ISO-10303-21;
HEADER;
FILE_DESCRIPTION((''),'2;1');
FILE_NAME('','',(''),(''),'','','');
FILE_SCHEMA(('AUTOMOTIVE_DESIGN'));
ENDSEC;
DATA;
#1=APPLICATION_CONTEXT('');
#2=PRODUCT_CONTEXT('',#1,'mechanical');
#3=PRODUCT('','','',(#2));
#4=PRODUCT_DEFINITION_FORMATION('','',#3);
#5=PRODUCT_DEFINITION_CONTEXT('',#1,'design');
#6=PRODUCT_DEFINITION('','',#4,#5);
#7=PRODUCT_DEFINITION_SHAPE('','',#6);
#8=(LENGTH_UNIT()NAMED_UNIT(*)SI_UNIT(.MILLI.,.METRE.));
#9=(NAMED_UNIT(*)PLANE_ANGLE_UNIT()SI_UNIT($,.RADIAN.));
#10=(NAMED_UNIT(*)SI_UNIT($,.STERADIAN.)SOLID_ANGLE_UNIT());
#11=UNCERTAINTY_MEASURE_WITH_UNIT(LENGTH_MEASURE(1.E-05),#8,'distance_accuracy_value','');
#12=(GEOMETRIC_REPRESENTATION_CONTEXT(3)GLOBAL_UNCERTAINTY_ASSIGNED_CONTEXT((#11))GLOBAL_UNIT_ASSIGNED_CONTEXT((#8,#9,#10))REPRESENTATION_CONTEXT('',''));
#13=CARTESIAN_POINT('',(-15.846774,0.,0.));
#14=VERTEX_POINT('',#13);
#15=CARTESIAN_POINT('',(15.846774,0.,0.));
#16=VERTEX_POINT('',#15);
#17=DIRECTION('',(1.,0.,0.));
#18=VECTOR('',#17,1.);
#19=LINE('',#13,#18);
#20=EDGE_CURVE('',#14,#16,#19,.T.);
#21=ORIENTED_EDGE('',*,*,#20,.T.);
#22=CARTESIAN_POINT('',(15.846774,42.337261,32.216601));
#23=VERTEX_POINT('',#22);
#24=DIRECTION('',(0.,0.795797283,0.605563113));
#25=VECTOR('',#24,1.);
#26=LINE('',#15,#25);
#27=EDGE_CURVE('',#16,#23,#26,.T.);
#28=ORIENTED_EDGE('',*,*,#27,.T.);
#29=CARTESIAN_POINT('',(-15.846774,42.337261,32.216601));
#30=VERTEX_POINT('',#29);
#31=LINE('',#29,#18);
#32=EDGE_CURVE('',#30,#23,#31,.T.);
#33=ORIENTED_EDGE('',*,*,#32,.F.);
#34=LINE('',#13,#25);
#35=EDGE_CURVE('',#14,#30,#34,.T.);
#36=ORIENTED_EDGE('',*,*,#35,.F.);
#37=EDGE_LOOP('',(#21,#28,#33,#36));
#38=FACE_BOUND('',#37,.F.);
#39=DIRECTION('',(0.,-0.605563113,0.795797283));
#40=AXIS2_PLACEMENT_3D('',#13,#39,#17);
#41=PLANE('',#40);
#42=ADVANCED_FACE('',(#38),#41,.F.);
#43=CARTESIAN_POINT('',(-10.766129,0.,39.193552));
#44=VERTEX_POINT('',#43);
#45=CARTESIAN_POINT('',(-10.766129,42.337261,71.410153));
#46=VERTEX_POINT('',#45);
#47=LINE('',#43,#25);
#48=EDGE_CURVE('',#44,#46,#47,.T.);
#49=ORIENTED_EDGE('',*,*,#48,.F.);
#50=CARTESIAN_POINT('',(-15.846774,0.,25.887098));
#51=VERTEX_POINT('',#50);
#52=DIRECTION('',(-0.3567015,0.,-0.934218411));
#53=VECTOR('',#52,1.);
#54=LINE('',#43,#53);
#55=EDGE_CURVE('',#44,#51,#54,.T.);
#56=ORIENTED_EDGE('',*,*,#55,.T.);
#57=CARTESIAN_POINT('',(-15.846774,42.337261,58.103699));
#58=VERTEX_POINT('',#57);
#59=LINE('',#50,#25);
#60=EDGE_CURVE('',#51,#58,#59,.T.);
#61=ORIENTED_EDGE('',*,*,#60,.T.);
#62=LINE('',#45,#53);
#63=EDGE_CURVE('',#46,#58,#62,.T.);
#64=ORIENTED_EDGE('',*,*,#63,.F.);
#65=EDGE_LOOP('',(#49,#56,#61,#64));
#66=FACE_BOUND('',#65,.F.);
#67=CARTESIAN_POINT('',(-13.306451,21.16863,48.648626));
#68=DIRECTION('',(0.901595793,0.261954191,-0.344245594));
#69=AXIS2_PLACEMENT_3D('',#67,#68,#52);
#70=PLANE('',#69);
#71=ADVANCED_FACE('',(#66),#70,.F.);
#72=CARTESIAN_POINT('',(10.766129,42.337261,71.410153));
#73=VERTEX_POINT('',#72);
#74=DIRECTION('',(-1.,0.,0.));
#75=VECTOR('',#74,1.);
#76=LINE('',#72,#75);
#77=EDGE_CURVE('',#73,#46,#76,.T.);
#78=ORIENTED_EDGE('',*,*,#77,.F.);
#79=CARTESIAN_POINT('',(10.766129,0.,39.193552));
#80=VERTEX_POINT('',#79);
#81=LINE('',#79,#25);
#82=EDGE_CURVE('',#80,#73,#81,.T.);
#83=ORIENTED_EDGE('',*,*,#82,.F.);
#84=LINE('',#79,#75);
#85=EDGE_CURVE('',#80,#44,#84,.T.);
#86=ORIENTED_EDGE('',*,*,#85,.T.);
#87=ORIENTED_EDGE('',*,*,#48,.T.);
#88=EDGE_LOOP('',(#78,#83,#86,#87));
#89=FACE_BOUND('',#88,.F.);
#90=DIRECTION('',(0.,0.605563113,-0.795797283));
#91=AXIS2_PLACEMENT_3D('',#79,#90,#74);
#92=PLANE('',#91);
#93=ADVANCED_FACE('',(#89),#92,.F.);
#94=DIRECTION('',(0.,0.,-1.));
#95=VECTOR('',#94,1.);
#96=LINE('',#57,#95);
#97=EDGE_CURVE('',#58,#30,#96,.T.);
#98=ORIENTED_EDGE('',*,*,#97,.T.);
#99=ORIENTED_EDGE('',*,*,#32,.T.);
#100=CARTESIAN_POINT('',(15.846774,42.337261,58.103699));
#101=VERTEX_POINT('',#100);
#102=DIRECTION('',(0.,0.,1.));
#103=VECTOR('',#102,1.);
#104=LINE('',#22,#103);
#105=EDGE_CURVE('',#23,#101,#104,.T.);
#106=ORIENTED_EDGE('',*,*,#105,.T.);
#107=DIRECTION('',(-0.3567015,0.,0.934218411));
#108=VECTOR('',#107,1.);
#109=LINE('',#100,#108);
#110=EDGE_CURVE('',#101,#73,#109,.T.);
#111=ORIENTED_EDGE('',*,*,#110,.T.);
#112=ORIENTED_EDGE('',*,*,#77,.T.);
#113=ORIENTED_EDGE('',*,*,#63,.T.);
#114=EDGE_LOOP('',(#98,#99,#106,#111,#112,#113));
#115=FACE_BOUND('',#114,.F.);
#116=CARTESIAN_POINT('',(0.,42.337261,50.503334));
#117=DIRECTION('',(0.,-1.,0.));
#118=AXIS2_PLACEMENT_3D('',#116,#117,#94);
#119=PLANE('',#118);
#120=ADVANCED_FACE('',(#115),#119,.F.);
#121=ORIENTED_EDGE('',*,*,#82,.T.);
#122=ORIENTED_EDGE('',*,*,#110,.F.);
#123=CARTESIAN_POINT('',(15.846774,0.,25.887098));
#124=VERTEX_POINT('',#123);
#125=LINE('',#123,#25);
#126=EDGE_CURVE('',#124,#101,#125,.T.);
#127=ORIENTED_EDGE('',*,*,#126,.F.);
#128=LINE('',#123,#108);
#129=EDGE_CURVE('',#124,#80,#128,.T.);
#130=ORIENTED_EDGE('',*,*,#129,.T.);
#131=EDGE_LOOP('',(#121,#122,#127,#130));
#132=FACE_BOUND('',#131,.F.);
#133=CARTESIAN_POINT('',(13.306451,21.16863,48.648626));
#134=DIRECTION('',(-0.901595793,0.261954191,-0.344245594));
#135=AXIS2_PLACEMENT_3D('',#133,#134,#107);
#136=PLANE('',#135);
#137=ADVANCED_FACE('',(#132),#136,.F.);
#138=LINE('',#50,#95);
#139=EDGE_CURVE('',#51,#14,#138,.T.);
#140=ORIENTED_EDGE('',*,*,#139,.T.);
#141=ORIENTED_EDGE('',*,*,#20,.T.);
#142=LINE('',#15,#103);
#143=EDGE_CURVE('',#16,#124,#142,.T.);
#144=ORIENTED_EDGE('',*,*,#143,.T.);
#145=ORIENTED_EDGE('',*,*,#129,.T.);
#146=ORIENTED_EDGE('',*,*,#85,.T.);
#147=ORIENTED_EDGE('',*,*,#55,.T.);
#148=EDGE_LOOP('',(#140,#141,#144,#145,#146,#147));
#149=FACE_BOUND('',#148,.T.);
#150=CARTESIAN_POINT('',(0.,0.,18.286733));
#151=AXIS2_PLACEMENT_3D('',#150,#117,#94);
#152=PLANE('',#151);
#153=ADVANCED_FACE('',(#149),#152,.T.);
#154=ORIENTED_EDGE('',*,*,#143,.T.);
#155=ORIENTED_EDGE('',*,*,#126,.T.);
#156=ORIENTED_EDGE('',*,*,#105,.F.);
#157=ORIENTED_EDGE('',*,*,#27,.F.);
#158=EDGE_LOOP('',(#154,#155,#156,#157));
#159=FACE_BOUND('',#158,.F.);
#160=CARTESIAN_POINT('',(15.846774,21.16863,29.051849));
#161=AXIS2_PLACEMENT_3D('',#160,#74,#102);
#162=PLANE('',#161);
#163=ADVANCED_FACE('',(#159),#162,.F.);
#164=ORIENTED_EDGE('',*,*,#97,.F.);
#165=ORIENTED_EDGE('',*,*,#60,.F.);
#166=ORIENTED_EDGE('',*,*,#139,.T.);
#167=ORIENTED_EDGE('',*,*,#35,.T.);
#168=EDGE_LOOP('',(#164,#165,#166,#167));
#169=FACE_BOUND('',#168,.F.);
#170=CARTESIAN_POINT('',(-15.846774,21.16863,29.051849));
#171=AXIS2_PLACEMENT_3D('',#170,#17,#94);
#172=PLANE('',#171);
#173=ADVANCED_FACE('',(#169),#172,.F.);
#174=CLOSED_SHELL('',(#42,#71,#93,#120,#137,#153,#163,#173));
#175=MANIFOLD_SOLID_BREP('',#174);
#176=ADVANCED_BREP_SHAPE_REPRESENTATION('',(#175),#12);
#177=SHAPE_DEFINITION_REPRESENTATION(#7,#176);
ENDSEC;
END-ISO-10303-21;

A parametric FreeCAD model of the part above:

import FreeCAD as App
import Part
import Sketcher


def add_polygon(sketch, points):
    """Adds a closed chain of lines whose ends are joined by coincident constraints."""
    first, n = sketch.GeometryCount, len(points)
    for a, b in zip(points, points[1:] + points[:1]):
        sketch.addGeometry(Part.LineSegment(App.Vector(*a, 0), App.Vector(*b, 0)), False)
    for i in range(n):
        sketch.addConstraint(Sketcher.Constraint("Coincident", first + i, 2, first + (i + 1) % n, 1))

doc = App.newDocument("Part")
body = doc.addObject("PartDesign::Body", "Body")

# Sketch on XZ plane
sketch1 = doc.addObject("Sketcher::SketchObject", "Sketch")
body.addObject(sketch1)
sketch1.AttachmentSupport = (doc.XZ_Plane, [""])
sketch1.MapMode = "FlatFace"
add_polygon(sketch1, [(-15.846774, 0), (15.846774, 0), (15.846774, 25.887098), (10.766129, 39.193552), (-10.766129, 39.193552), (-15.846774, 25.887098)])  # lines 0-5
sketch1.addConstraint([
    Sketcher.Constraint("Horizontal", 0),
    Sketcher.Constraint("Vertical", 1),
    Sketcher.Constraint("Horizontal", 3),
    Sketcher.Constraint("Vertical", 5),
    Sketcher.Constraint("Symmetric", 0, 2, 5, 2, -1, 1),
    Sketcher.Constraint("Horizontal", 1, 2, 4, 2),
    Sketcher.Constraint("Equal", 2, 4),
    Sketcher.Constraint("DistanceY", 1, 1, 1, 2, 25.887098),
    Sketcher.Constraint("DistanceX", 0, 1, 0, 2, 31.693548),
    Sketcher.Constraint("Distance", 2, 14.243408),
    Sketcher.Constraint("DistanceX", 3, 2, 3, 1, 21.532258),
])

# Sketch on an angled plane
sketch2 = doc.addObject("Sketcher::SketchObject", "Sketch001")
body.addObject(sketch2)
sketch2.Placement = App.Placement(App.Vector(0, 0, 0), App.Rotation(App.Vector(0, 0.795797283, 0.605563113), App.Vector(0.999999999, 0, 0), App.Vector(0, 0.605563113, -0.795797283), "ZXY"))
sketch2.addGeometry(Part.LineSegment(App.Vector(0, 0, 0), App.Vector(53.201062, 0, 0)), False)
sketch2.addConstraint([
    Sketcher.Constraint("Horizontal", 0),
    Sketcher.Constraint("Coincident", 0, 1, -1, 1),
    Sketcher.Constraint("DistanceX", 0, 1, 0, 2, 53.201062),
])
doc.recompute()

additivepipe = doc.addObject("PartDesign::AdditivePipe", "AdditivePipe")
body.addObject(additivepipe)
additivepipe.Profile = sketch1
additivepipe.Spine = (sketch2, ["Edge1"])

doc.recompute()
